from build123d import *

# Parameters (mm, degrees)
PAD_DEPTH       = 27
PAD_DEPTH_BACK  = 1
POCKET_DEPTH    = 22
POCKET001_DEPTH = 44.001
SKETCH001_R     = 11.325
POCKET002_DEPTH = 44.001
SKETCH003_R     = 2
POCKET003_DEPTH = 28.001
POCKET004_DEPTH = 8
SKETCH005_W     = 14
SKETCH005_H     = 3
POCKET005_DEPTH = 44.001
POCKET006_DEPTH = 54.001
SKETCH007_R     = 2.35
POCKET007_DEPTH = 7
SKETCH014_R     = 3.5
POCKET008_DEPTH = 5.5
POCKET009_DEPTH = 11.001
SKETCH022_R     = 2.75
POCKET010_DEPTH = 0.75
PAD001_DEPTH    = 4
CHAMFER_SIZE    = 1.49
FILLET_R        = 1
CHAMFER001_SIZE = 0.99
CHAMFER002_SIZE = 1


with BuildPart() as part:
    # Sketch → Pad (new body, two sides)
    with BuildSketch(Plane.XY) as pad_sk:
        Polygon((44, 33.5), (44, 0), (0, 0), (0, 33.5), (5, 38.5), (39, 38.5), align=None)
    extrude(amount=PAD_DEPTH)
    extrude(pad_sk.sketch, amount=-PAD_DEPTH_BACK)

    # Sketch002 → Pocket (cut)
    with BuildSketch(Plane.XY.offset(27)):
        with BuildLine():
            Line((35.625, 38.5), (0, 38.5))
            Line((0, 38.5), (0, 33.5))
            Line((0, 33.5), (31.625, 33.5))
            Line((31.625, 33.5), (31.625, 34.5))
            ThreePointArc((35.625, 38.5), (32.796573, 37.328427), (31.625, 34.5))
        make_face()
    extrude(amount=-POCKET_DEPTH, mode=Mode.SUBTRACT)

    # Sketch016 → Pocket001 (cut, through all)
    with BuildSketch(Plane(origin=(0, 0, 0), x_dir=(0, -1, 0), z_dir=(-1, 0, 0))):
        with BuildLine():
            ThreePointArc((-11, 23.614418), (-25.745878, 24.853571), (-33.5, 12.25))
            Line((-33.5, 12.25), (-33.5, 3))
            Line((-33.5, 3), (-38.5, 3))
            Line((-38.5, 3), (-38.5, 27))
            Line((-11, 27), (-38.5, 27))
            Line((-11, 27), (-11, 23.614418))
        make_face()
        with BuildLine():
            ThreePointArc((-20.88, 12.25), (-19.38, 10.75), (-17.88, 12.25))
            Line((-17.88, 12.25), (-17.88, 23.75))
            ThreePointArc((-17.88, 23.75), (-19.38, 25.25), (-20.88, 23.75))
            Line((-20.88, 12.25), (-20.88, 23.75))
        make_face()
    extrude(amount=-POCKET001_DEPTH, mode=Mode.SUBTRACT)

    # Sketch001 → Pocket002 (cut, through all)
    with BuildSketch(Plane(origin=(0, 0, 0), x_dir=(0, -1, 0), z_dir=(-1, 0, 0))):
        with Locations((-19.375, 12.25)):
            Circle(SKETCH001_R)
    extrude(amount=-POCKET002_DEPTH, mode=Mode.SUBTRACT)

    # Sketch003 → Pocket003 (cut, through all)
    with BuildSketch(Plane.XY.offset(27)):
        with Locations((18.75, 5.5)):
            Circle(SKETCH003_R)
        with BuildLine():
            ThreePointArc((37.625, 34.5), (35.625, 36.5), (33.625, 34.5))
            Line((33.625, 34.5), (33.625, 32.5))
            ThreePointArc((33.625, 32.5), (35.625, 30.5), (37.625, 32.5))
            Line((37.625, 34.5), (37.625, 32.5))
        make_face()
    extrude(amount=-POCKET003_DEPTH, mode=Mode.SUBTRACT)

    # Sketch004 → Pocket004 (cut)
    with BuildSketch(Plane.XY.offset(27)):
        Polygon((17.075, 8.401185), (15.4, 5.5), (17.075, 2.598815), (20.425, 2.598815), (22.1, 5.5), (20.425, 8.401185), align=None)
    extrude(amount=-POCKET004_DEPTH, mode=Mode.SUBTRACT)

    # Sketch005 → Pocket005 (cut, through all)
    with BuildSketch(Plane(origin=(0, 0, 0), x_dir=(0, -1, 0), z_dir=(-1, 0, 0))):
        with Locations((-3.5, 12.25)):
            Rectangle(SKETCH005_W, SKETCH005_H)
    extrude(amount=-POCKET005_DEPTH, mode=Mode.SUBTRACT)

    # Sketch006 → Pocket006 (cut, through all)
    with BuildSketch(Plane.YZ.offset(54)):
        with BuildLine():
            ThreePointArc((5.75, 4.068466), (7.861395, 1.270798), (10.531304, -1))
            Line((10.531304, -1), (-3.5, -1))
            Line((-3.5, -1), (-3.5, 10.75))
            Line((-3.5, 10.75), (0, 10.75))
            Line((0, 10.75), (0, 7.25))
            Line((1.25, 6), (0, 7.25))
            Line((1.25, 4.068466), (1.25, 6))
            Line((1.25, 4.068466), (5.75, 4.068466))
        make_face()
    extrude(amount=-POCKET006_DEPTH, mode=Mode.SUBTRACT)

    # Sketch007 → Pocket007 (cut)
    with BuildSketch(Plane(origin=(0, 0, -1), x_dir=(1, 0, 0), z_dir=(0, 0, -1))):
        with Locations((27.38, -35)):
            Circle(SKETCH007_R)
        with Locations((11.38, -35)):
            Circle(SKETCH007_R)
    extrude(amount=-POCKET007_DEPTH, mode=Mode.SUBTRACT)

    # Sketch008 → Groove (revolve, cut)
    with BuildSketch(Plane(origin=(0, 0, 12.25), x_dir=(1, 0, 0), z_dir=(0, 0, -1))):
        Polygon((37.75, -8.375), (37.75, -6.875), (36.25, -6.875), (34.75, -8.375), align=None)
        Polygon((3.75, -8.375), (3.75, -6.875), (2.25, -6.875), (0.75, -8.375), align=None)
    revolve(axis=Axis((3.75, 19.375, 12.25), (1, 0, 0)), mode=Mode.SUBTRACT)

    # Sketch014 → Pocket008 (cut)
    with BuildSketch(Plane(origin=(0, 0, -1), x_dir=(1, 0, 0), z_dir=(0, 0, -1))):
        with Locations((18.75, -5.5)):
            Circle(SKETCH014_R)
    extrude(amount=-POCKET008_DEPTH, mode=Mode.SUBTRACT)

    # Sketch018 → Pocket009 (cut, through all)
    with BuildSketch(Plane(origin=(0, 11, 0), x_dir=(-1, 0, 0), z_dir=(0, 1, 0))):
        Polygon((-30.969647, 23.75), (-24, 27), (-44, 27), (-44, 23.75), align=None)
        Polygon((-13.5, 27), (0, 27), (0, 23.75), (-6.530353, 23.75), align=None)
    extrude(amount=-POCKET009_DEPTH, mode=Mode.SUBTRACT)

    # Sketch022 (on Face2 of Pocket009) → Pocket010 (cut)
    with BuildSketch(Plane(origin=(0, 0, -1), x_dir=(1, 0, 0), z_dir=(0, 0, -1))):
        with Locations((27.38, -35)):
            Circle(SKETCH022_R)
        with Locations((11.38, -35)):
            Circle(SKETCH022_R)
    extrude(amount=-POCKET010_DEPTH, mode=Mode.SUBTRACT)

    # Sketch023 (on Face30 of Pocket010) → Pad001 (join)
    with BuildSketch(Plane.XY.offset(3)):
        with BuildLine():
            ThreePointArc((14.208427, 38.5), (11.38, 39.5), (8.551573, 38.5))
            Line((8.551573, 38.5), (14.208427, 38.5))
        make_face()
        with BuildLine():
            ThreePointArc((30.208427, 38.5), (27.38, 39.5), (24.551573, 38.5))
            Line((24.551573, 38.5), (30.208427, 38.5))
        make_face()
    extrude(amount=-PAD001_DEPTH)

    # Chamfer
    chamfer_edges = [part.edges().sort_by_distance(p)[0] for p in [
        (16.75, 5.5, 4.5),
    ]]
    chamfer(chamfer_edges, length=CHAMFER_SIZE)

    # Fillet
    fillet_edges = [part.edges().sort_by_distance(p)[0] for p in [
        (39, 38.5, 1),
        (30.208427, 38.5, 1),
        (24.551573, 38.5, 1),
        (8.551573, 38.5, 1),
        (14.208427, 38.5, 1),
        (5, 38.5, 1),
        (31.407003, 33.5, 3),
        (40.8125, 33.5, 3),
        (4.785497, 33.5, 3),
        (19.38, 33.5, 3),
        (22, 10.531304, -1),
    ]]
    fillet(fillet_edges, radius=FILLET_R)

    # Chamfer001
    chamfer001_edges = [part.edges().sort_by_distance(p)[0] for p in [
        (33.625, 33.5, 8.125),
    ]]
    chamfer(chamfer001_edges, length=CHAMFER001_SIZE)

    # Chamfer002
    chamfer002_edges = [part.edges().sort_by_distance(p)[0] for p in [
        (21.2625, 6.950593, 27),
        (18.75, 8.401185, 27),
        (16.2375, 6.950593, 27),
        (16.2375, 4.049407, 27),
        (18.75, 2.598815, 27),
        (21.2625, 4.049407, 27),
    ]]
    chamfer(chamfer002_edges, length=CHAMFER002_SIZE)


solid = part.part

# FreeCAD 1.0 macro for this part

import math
import FreeCAD as App
import Part
import Sketcher
Q = App.Units.Quantity


def edges_at(feature, points):
    """Names of the edges that pass closest to the given points."""
    edges = feature.Shape.Edges
    near = lambda p: min(range(len(edges)), key=lambda i: edges[i].distToShape(Part.Vertex(*p))[0])
    return sorted({f"Edge{near(p) + 1}" for p in points})

doc = App.newDocument("Part")
body = doc.addObject("PartDesign::Body", "Body")

sketch1 = doc.addObject("Sketcher::SketchObject", "Sketch")
body.addObject(sketch1)
sketch1.AttachmentSupport = (doc.XY_Plane, [""])
sketch1.MapMode = "FlatFace"
sketch1.addGeometry(Part.LineSegment(App.Vector(44, 0, 0), App.Vector(44, 34, 0)), False)
sketch1.addGeometry(Part.LineSegment(App.Vector(44, 34, 0), App.Vector(39, 38, 0)), False)
sketch1.addGeometry(Part.LineSegment(App.Vector(39, 38, 0), App.Vector(5, 38, 0)), False)
sketch1.addGeometry(Part.LineSegment(App.Vector(5, 38, 0), App.Vector(0, 34, 0)), False)
sketch1.addGeometry(Part.LineSegment(App.Vector(0, 34, 0), App.Vector(0, 0, 0)), False)
sketch1.addGeometry(Part.LineSegment(App.Vector(0, 0, 0), App.Vector(44, 0, 0)), False)
sketch1.addConstraint(Sketcher.Constraint("Coincident", 0, 2, 1, 1))
sketch1.addConstraint(Sketcher.Constraint("Coincident", 1, 2, 2, 1))
sketch1.addConstraint(Sketcher.Constraint("Coincident", 2, 2, 3, 1))
sketch1.addConstraint(Sketcher.Constraint("Coincident", 3, 2, 4, 1))
sketch1.addConstraint(Sketcher.Constraint("Coincident", 4, 2, 5, 1))
sketch1.addConstraint(Sketcher.Constraint("Coincident", 5, 2, 0, 1))
sketch1.addConstraint(Sketcher.Constraint("Vertical", 0))
sketch1.addConstraint(Sketcher.Constraint("Horizontal", 2))
sketch1.addConstraint(Sketcher.Constraint("Vertical", 4))
sketch1.addConstraint(Sketcher.Constraint("Horizontal", 5))
sketch1.addConstraint(Sketcher.Constraint("Coincident", 4, 2, -1, 1))
sketch1.addConstraint(Sketcher.Constraint("Perpendicular", 1, 3))
sketch1.addConstraint(Sketcher.Constraint("Horizontal", 0, 2, 3, 2))
sketch1.addConstraint(Sketcher.Constraint("Equal", 1, 3))
sketch1.addConstraint(Sketcher.Constraint("DistanceX", 2, 2, 2, 1, 34.0))
sketch1.addConstraint(Sketcher.Constraint("DistanceX", 5, 1, 5, 2, 44.0))
sketch1.addConstraint(Sketcher.Constraint("DistanceY", 0, 1, 0, 2, 33.5))
pad1 = doc.addObject("PartDesign::Pad", "Pad")
body.addObject(pad1)
pad1.Profile = sketch1
pad1.Type = "TwoLengths"
pad1.Length = 27
pad1.Length2 = 1

sketch2 = doc.addObject("Sketcher::SketchObject", "Sketch001")
body.addObject(sketch2)
sketch2.AttachmentSupport = (doc.XY_Plane, [""])
sketch2.MapMode = "FlatFace"
sketch2.AttachmentOffset = App.Placement(App.Vector(0, 0, 27), App.Rotation())
sketch2.addGeometry(Part.LineSegment(App.Vector(35.6, 38.5, 0), App.Vector(0, 38.5, 0)), False)
sketch2.addGeometry(Part.LineSegment(App.Vector(0, 38.5, 0), App.Vector(0, 33.5, 0)), False)
sketch2.addGeometry(Part.LineSegment(App.Vector(0, 33.5, 0), App.Vector(31.6, 33.5, 0)), False)
sketch2.addGeometry(Part.LineSegment(App.Vector(31.6, 33.5, 0), App.Vector(31.6, 34.5, 0)), False)
sketch2.addGeometry(Part.ArcOfCircle(Part.Circle(App.Vector(35.6, 34.5, 0), App.Vector(0, 0, 1), 4), math.radians(90), math.radians(180)), False)
sketch2.addConstraint(Sketcher.Constraint("Coincident", 0, 2, 1, 1))
sketch2.addConstraint(Sketcher.Constraint("Coincident", 1, 2, 2, 1))
sketch2.addConstraint(Sketcher.Constraint("Coincident", 2, 2, 3, 1))
sketch2.addConstraint(Sketcher.Constraint("Tangent", 3, 2, 4, 2))
sketch2.addConstraint(Sketcher.Constraint("Tangent", 4, 1, 0, 1))
sketch2.addConstraint(Sketcher.Constraint("Horizontal", 0))
sketch2.addConstraint(Sketcher.Constraint("Vertical", 1))
sketch2.addConstraint(Sketcher.Constraint("Horizontal", 2))
sketch2.addConstraint(Sketcher.Constraint("Vertical", 3))
sketch2.addConstraint(Sketcher.Constraint("PointOnObject", 0, 2, -2))
sketch2.addConstraint(Sketcher.Constraint("Radius", 4, 4.0))
sketch2.addConstraint(Sketcher.Constraint("DistanceY", 1, 2, 1, 1, 5.0))
sketch2.addConstraint(Sketcher.Constraint("DistanceY", -1, 1, 4, 3, 34.5))
sketch2.addConstraint(Sketcher.Constraint("DistanceX", 0, 2, 0, 1, 35.625))
pocket1 = doc.addObject("PartDesign::Pocket", "Pocket")
body.addObject(pocket1)
pocket1.Profile = sketch2
pocket1.Length = 22

sketch3 = doc.addObject("Sketcher::SketchObject", "Sketch002")
body.addObject(sketch3)
sketch3.AttachmentSupport = (doc.YZ_Plane, [""])
sketch3.MapMode = "FlatFace"
sketch3.addGeometry(Part.ArcOfCircle(Part.Circle(App.Vector(19.4, 12.3, 0), App.Vector(0, 0, 1), 14.1), math.radians(0), math.radians(126)), False)
sketch3.addGeometry(Part.LineSegment(App.Vector(11, 23.6, 0), App.Vector(11, 27, 0)), False)
sketch3.addGeometry(Part.LineSegment(App.Vector(11, 27, 0), App.Vector(38.5, 27, 0)), False)
sketch3.addGeometry(Part.LineSegment(App.Vector(38.5, 27, 0), App.Vector(38.5, 3, 0)), False)
sketch3.addGeometry(Part.LineSegment(App.Vector(38.5, 3, 0), App.Vector(33.5, 3, 0)), False)
sketch3.addGeometry(Part.LineSegment(App.Vector(33.5, 3, 0), App.Vector(33.5, 12.2, 0)), False)
sketch3.addGeometry(Part.ArcOfCircle(Part.Circle(App.Vector(19.4, 12.2, 0), App.Vector(0, 0, 1), 1.5), math.radians(180), math.radians(360)), False)
sketch3.addGeometry(Part.LineSegment(App.Vector(17.9, 12.2, 0), App.Vector(17.9, 23.8, 0)), False)
sketch3.addGeometry(Part.ArcOfCircle(Part.Circle(App.Vector(19.4, 23.8, 0), App.Vector(0, 0, 1), 1.5), math.radians(0), math.radians(180)), False)
sketch3.addGeometry(Part.LineSegment(App.Vector(20.9, 23.8, 0), App.Vector(20.9, 12.2, 0)), False)
sketch3.addConstraint(Sketcher.Constraint("Coincident", 0, 2, 1, 1))
sketch3.addConstraint(Sketcher.Constraint("Coincident", 1, 2, 2, 1))
sketch3.addConstraint(Sketcher.Constraint("Coincident", 2, 2, 3, 1))
sketch3.addConstraint(Sketcher.Constraint("Coincident", 3, 2, 4, 1))
sketch3.addConstraint(Sketcher.Constraint("Coincident", 4, 2, 5, 1))
sketch3.addConstraint(Sketcher.Constraint("Tangent", 5, 2, 0, 1))
sketch3.addConstraint(Sketcher.Constraint("Tangent", 6, 1, 7, 1))
sketch3.addConstraint(Sketcher.Constraint("Tangent", 7, 2, 8, 2))
sketch3.addConstraint(Sketcher.Constraint("Tangent", 8, 1, 9, 1))
sketch3.addConstraint(Sketcher.Constraint("Tangent", 9, 2, 6, 2))
sketch3.addConstraint(Sketcher.Constraint("Vertical", 1))
sketch3.addConstraint(Sketcher.Constraint("Horizontal", 2))
sketch3.addConstraint(Sketcher.Constraint("Vertical", 3))
sketch3.addConstraint(Sketcher.Constraint("Horizontal", 4))
sketch3.addConstraint(Sketcher.Constraint("Vertical", 5))
sketch3.addConstraint(Sketcher.Constraint("Vertical", 7))
sketch3.addConstraint(Sketcher.Constraint("Vertical", 9))
sketch3.addConstraint(Sketcher.Constraint("Coincident", 6, 3, 0, 3))
sketch3.addConstraint(Sketcher.Constraint("Radius", 6, 1.5))
sketch3.addConstraint(Sketcher.Constraint("DistanceX", 4, 2, 4, 1, 5.0))
sketch3.addConstraint(Sketcher.Constraint("DistanceY", 3, 2, 3, 1, 24.0))
sketch3.addConstraint(Sketcher.Constraint("Radius", 0, 14.12))
sketch3.addConstraint(Sketcher.Constraint("DistanceX", 2, 1, 2, 2, 27.5))
sketch3.addConstraint(Sketcher.Constraint("DistanceY", 7, 1, 7, 2, 11.5))
sketch3.addConstraint(Sketcher.Constraint("DistanceX", -1, 1, 0, 2, 11.0))
sketch3.addConstraint(Sketcher.Constraint("DistanceY", -1, 1, 1, 2, 27.0))
sketch3.addConstraint(Sketcher.Constraint("DistanceY", 5, 1, 5, 2, 9.25))
pocket2 = doc.addObject("PartDesign::Pocket", "Pocket001")
body.addObject(pocket2)
pocket2.Profile = sketch3
pocket2.Type = "ThroughAll"
pocket2.Reversed = True

sketch4 = doc.addObject("Sketcher::SketchObject", "Sketch003")
body.addObject(sketch4)
sketch4.AttachmentSupport = (doc.YZ_Plane, [""])
sketch4.MapMode = "FlatFace"
sketch4.addGeometry(Part.Circle(App.Vector(19, 12, 0), App.Vector(0, 0, 1), 11), False)
sketch4.addConstraint(Sketcher.Constraint("Diameter", 0, 22.65))
sketch4.addConstraint(Sketcher.Constraint("DistanceY", -1, 1, 0, 3, 12.25))
sketch4.addConstraint(Sketcher.Constraint("DistanceX", -1, 1, 0, 3, 19.375))
pocket3 = doc.addObject("PartDesign::Pocket", "Pocket002")
body.addObject(pocket3)
pocket3.Profile = sketch4
pocket3.Type = "ThroughAll"
pocket3.Reversed = True

sketch5 = doc.addObject("Sketcher::SketchObject", "Sketch004")
body.addObject(sketch5)
sketch5.AttachmentSupport = (doc.XY_Plane, [""])
sketch5.MapMode = "FlatFace"
sketch5.AttachmentOffset = App.Placement(App.Vector(0, 0, 27), App.Rotation())
sketch5.addGeometry(Part.Circle(App.Vector(18.8, 5.5, 0), App.Vector(0, 0, 1), 2), False)
sketch5.addGeometry(Part.ArcOfCircle(Part.Circle(App.Vector(35.6, 34.5, 0), App.Vector(0, 0, 1), 2), math.radians(0), math.radians(180)), False)
sketch5.addGeometry(Part.LineSegment(App.Vector(33.6, 34.5, 0), App.Vector(33.6, 32.5, 0)), False)
sketch5.addGeometry(Part.ArcOfCircle(Part.Circle(App.Vector(35.6, 32.5, 0), App.Vector(0, 0, 1), 2), math.radians(180), math.radians(360)), False)
sketch5.addGeometry(Part.LineSegment(App.Vector(37.6, 32.5, 0), App.Vector(37.6, 34.5, 0)), False)
sketch5.addConstraint(Sketcher.Constraint("Tangent", 1, 2, 2, 1))
sketch5.addConstraint(Sketcher.Constraint("Tangent", 2, 2, 3, 1))
sketch5.addConstraint(Sketcher.Constraint("Tangent", 3, 2, 4, 1))
sketch5.addConstraint(Sketcher.Constraint("Tangent", 4, 2, 1, 1))
sketch5.addConstraint(Sketcher.Constraint("Vertical", 2))
sketch5.addConstraint(Sketcher.Constraint("Vertical", 4))
sketch5.addConstraint(Sketcher.Constraint("Equal", 0, 1))
sketch5.addConstraint(Sketcher.Constraint("Diameter", 0, 4.0))
sketch5.addConstraint(Sketcher.Constraint("DistanceY", 2, 2, 2, 1, 2.0))
sketch5.addConstraint(Sketcher.Constraint("DistanceY", 0, 3, 1, 3, 29.0))
sketch5.addConstraint(Sketcher.Constraint("DistanceY", -1, 1, 0, 3, 5.5))
sketch5.addConstraint(Sketcher.Constraint("DistanceX", -1, 1, 0, 3, 18.75))
sketch5.addConstraint(Sketcher.Constraint("DistanceX", -1, 1, 1, 3, 35.625))
pocket4 = doc.addObject("PartDesign::Pocket", "Pocket003")
body.addObject(pocket4)
pocket4.Profile = sketch5
pocket4.Type = "ThroughAll"

sketch6 = doc.addObject("Sketcher::SketchObject", "Sketch005")
body.addObject(sketch6)
sketch6.AttachmentSupport = (doc.XY_Plane, [""])
sketch6.MapMode = "FlatFace"
sketch6.AttachmentOffset = App.Placement(App.Vector(0, 0, 27), App.Rotation())
sketch6.addGeometry(Part.LineSegment(App.Vector(17.1, 8.4, 0), App.Vector(15.4, 5.5, 0)), False)
sketch6.addGeometry(Part.LineSegment(App.Vector(15.4, 5.5, 0), App.Vector(17.1, 2.6, 0)), False)
sketch6.addGeometry(Part.LineSegment(App.Vector(17.1, 2.6, 0), App.Vector(20.4, 2.6, 0)), False)
sketch6.addGeometry(Part.LineSegment(App.Vector(20.4, 2.6, 0), App.Vector(22.1, 5.5, 0)), False)
sketch6.addGeometry(Part.LineSegment(App.Vector(22.1, 5.5, 0), App.Vector(20.4, 8.4, 0)), False)
sketch6.addGeometry(Part.LineSegment(App.Vector(20.4, 8.4, 0), App.Vector(17.1, 8.4, 0)), False)
sketch6.addConstraint(Sketcher.Constraint("Coincident", 0, 2, 1, 1))
sketch6.addConstraint(Sketcher.Constraint("Coincident", 1, 2, 2, 1))
sketch6.addConstraint(Sketcher.Constraint("Coincident", 2, 2, 3, 1))
sketch6.addConstraint(Sketcher.Constraint("Coincident", 3, 2, 4, 1))
sketch6.addConstraint(Sketcher.Constraint("Coincident", 4, 2, 5, 1))
sketch6.addConstraint(Sketcher.Constraint("Coincident", 5, 2, 0, 1))
sketch6.addConstraint(Sketcher.Constraint("Horizontal", 2))
sketch6.addConstraint(Sketcher.Constraint("Horizontal", 5))
sketch6.addConstraint(Sketcher.Constraint("Parallel", 0, 3))
sketch6.addConstraint(Sketcher.Constraint("Parallel", 1, 4))
sketch6.addConstraint(Sketcher.Constraint("Horizontal", 0, 2, 3, 2))
sketch6.addConstraint(Sketcher.Constraint("Vertical", 2, 2, 4, 2))
sketch6.addConstraint(Sketcher.Constraint("Vertical", 1, 2, 5, 2))
sketch6.addConstraint(Sketcher.Constraint("Angle", 0, Q("-120.000001 deg")))
sketch6.addConstraint(Sketcher.Constraint("DistanceX", 2, 1, 2, 2, 3.35))
sketch6.addConstraint(Sketcher.Constraint("DistanceX", -1, 1, 0, 2, 15.4))
sketch6.addConstraint(Sketcher.Constraint("DistanceY", -1, 1, 0, 2, 5.5))
sketch6.addConstraint(Sketcher.Constraint("DistanceX", -1, 1, 3, 2, 22.1))
pocket5 = doc.addObject("PartDesign::Pocket", "Pocket004")
body.addObject(pocket5)
pocket5.Profile = sketch6
pocket5.Length = 8

sketch7 = doc.addObject("Sketcher::SketchObject", "Sketch006")
body.addObject(sketch7)
sketch7.AttachmentSupport = (doc.YZ_Plane, [""])
sketch7.MapMode = "FlatFace"
sketch7.addGeometry(Part.LineSegment(App.Vector(10.5, 13.8, 0), App.Vector(10.5, 10.8, 0)), False)
sketch7.addGeometry(Part.LineSegment(App.Vector(10.5, 10.8, 0), App.Vector(-3.5, 10.8, 0)), False)
sketch7.addGeometry(Part.LineSegment(App.Vector(-3.5, 10.8, 0), App.Vector(-3.5, 13.8, 0)), False)
sketch7.addGeometry(Part.LineSegment(App.Vector(-3.5, 13.8, 0), App.Vector(10.5, 13.8, 0)), False)
sketch7.addConstraint(Sketcher.Constraint("Coincident", 0, 2, 1, 1))
sketch7.addConstraint(Sketcher.Constraint("Coincident", 1, 2, 2, 1))
sketch7.addConstraint(Sketcher.Constraint("Coincident", 2, 2, 3, 1))
sketch7.addConstraint(Sketcher.Constraint("Coincident", 3, 2, 0, 1))
sketch7.addConstraint(Sketcher.Constraint("Vertical", 0))
sketch7.addConstraint(Sketcher.Constraint("Horizontal", 1))
sketch7.addConstraint(Sketcher.Constraint("Vertical", 2))
sketch7.addConstraint(Sketcher.Constraint("Horizontal", 3))
sketch7.addConstraint(Sketcher.Constraint("DistanceX", 1, 2, 1, 1, 14.0))
sketch7.addConstraint(Sketcher.Constraint("DistanceY", 0, 2, 0, 1, 3.0))
sketch7.addConstraint(Sketcher.Constraint("DistanceX", -1, 1, 0, 2, 10.5))
sketch7.addConstraint(Sketcher.Constraint("DistanceY", -1, 1, 0, 2, 10.75))
pocket6 = doc.addObject("PartDesign::Pocket", "Pocket005")
body.addObject(pocket6)
pocket6.Profile = sketch7
pocket6.Type = "ThroughAll"
pocket6.Reversed = True

sketch8 = doc.addObject("Sketcher::SketchObject", "Sketch007")
body.addObject(sketch8)
sketch8.AttachmentSupport = (doc.YZ_Plane, [""])
sketch8.MapMode = "FlatFace"
sketch8.AttachmentOffset = App.Placement(App.Vector(0, 0, 54), App.Rotation())
sketch8.addGeometry(Part.ArcOfCircle(Part.Circle(App.Vector(19.5, 12.2, 0), App.Vector(0, 0, 1), 16), math.radians(-149), math.radians(-124)), False)
sketch8.addGeometry(Part.LineSegment(App.Vector(5.8, 4.1, 0), App.Vector(1.2, 4.1, 0)), False)
sketch8.addGeometry(Part.LineSegment(App.Vector(1.2, 4.1, 0), App.Vector(1.2, 6, 0)), False)
sketch8.addGeometry(Part.LineSegment(App.Vector(1.2, 6, 0), App.Vector(0, 7.2, 0)), False)
sketch8.addGeometry(Part.LineSegment(App.Vector(0, 7.2, 0), App.Vector(0, 10.8, 0)), False)
sketch8.addGeometry(Part.LineSegment(App.Vector(0, 10.8, 0), App.Vector(-3.5, 10.8, 0)), False)
sketch8.addGeometry(Part.LineSegment(App.Vector(-3.5, 10.8, 0), App.Vector(-3.5, -1, 0)), False)
sketch8.addGeometry(Part.LineSegment(App.Vector(-3.5, -1, 0), App.Vector(10.5, -1, 0)), False)
sketch8.addConstraint(Sketcher.Constraint("Coincident", 0, 1, 1, 1))
sketch8.addConstraint(Sketcher.Constraint("Coincident", 1, 2, 2, 1))
sketch8.addConstraint(Sketcher.Constraint("Coincident", 2, 2, 3, 1))
sketch8.addConstraint(Sketcher.Constraint("Coincident", 3, 2, 4, 1))
sketch8.addConstraint(Sketcher.Constraint("Coincident", 4, 2, 5, 1))
sketch8.addConstraint(Sketcher.Constraint("Coincident", 5, 2, 6, 1))
sketch8.addConstraint(Sketcher.Constraint("Coincident", 6, 2, 7, 1))
sketch8.addConstraint(Sketcher.Constraint("Coincident", 7, 2, 0, 2))
sketch8.addConstraint(Sketcher.Constraint("Horizontal", 1))
sketch8.addConstraint(Sketcher.Constraint("Vertical", 2))
sketch8.addConstraint(Sketcher.Constraint("Vertical", 4))
sketch8.addConstraint(Sketcher.Constraint("Horizontal", 5))
sketch8.addConstraint(Sketcher.Constraint("Vertical", 6))
sketch8.addConstraint(Sketcher.Constraint("Horizontal", 7))
sketch8.addConstraint(Sketcher.Constraint("PointOnObject", 3, 2, -2))
sketch8.addConstraint(Sketcher.Constraint("Equal", 5, 4))
sketch8.addConstraint(Sketcher.Constraint("Radius", 0, 16.000001))
sketch8.addConstraint(Sketcher.Constraint("Angle", 3, Q("135 deg")))
sketch8.addConstraint(Sketcher.Constraint("DistanceX", 1, 2, 1, 1, 4.5))
sketch8.addConstraint(Sketcher.Constraint("DistanceX", 5, 2, 5, 1, 3.5))
sketch8.addConstraint(Sketcher.Constraint("DistanceY", -1, 1, 2, 2, 6.0))
sketch8.addConstraint(Sketcher.Constraint("DistanceY", 6, 2, -1, 1, 1.0))
sketch8.addConstraint(Sketcher.Constraint("DistanceY", 3, 2, 0, 3, 5.0))
sketch8.addConstraint(Sketcher.Constraint("DistanceY", 6, 2, 6, 1, 11.75))
sketch8.addConstraint(Sketcher.Constraint("DistanceX", -1, 1, 0, 3, 19.500001))
pocket7 = doc.addObject("PartDesign::Pocket", "Pocket006")
body.addObject(pocket7)
pocket7.Profile = sketch8
pocket7.Type = "ThroughAll"

sketch9 = doc.addObject("Sketcher::SketchObject", "Sketch008")
body.addObject(sketch9)
sketch9.AttachmentSupport = (doc.XY_Plane, [""])
sketch9.MapMode = "FlatFace"
sketch9.AttachmentOffset = App.Placement(App.Vector(0, 0, -1), App.Rotation())
sketch9.addGeometry(Part.Circle(App.Vector(27.4, 35, 0), App.Vector(0, 0, 1), 2.4), False)
sketch9.addGeometry(Part.Circle(App.Vector(11.4, 35, 0), App.Vector(0, 0, 1), 2.4), False)
sketch9.addConstraint(Sketcher.Constraint("Equal", 0, 1))
sketch9.addConstraint(Sketcher.Constraint("Horizontal", 0, 3, 1, 3))
sketch9.addConstraint(Sketcher.Constraint("Diameter", 0, 4.7))
sketch9.addConstraint(Sketcher.Constraint("DistanceY", -1, 1, 0, 3, 35.0))
sketch9.addConstraint(Sketcher.Constraint("DistanceX", 1, 3, 0, 3, 16.0))
sketch9.addConstraint(Sketcher.Constraint("DistanceX", -1, 1, 0, 3, 27.38))
pocket8 = doc.addObject("PartDesign::Pocket", "Pocket007")
body.addObject(pocket8)
pocket8.Profile = sketch9
pocket8.Length = 7
pocket8.Reversed = True

sketch10 = doc.addObject("Sketcher::SketchObject", "Sketch009")
body.addObject(sketch10)
sketch10.AttachmentSupport = (doc.XY_Plane, [""])
sketch10.MapMode = "FlatFace"
sketch10.AttachmentOffset = App.Placement(App.Vector(0, 0, 12.25), App.Rotation())
sketch10.addGeometry(Part.LineSegment(App.Vector(37.8, 8.4, 0), App.Vector(37.8, 6.9, 0)), False)
sketch10.addGeometry(Part.LineSegment(App.Vector(37.8, 6.9, 0), App.Vector(36.2, 6.9, 0)), False)
sketch10.addGeometry(Part.LineSegment(App.Vector(36.2, 6.9, 0), App.Vector(34.8, 8.4, 0)), False)
sketch10.addGeometry(Part.LineSegment(App.Vector(34.8, 8.4, 0), App.Vector(37.8, 8.4, 0)), False)
sketch10.addGeometry(Part.LineSegment(App.Vector(3.8, 8.4, 0), App.Vector(3.8, 6.9, 0)), False)
sketch10.addGeometry(Part.LineSegment(App.Vector(3.8, 6.9, 0), App.Vector(2.2, 6.9, 0)), False)
sketch10.addGeometry(Part.LineSegment(App.Vector(2.2, 6.9, 0), App.Vector(0.8, 8.4, 0)), False)
sketch10.addGeometry(Part.LineSegment(App.Vector(0.8, 8.4, 0), App.Vector(3.8, 8.4, 0)), False)
sketch10.addGeometry(Part.LineSegment(App.Vector(0.8, 19.4, 0), App.Vector(37.8, 19.4, 0)), True)
sketch10.addConstraint(Sketcher.Constraint("Coincident", 0, 2, 1, 1))
sketch10.addConstraint(Sketcher.Constraint("Coincident", 1, 2, 2, 1))
sketch10.addConstraint(Sketcher.Constraint("Coincident", 2, 2, 3, 1))
sketch10.addConstraint(Sketcher.Constraint("Coincident", 3, 2, 0, 1))
sketch10.addConstraint(Sketcher.Constraint("Coincident", 4, 2, 5, 1))
sketch10.addConstraint(Sketcher.Constraint("Coincident", 5, 2, 6, 1))
sketch10.addConstraint(Sketcher.Constraint("Coincident", 6, 2, 7, 1))
sketch10.addConstraint(Sketcher.Constraint("Coincident", 7, 2, 4, 1))
sketch10.addConstraint(Sketcher.Constraint("Vertical", 0))
sketch10.addConstraint(Sketcher.Constraint("Horizontal", 1))
sketch10.addConstraint(Sketcher.Constraint("Horizontal", 3))
sketch10.addConstraint(Sketcher.Constraint("Vertical", 4))
sketch10.addConstraint(Sketcher.Constraint("Horizontal", 5))
sketch10.addConstraint(Sketcher.Constraint("Horizontal", 7))
sketch10.addConstraint(Sketcher.Constraint("Horizontal", 8))
sketch10.addConstraint(Sketcher.Constraint("Parallel", 2, 6))
sketch10.addConstraint(Sketcher.Constraint("Horizontal", 1, 2, 4, 2))
sketch10.addConstraint(Sketcher.Constraint("Horizontal", 3, 2, 6, 2))
sketch10.addConstraint(Sketcher.Constraint("Vertical", 6, 2, 8, 1))
sketch10.addConstraint(Sketcher.Constraint("Vertical", 3, 2, 8, 2))
sketch10.addConstraint(Sketcher.Constraint("Equal", 1, 5))
sketch10.addConstraint(Sketcher.Constraint("Equal", 5, 0))
sketch10.addConstraint(Sketcher.Constraint("DistanceX", 3, 1, 3, 2, 3.0))
sketch10.addConstraint(Sketcher.Constraint("DistanceX", 8, 1, 8, 2, 37.0))
sketch10.addConstraint(Sketcher.Constraint("Angle", 2, Q("135 deg")))
sketch10.addConstraint(Sketcher.Constraint("DistanceY", 6, 2, 8, 1, 11.0))
sketch10.addConstraint(Sketcher.Constraint("DistanceX", -1, 1, 0, 2, 37.75))
sketch10.addConstraint(Sketcher.Constraint("DistanceY", -1, 1, 0, 2, 6.875))
groove = doc.addObject("PartDesign::Groove", "Groove")
body.addObject(groove)
groove.Profile = sketch10
groove.ReferenceAxis = (sketch10, ["Axis0"])
groove.Angle = 360

sketch11 = doc.addObject("Sketcher::SketchObject", "Sketch010")
body.addObject(sketch11)
sketch11.AttachmentSupport = (doc.XY_Plane, [""])
sketch11.MapMode = "FlatFace"
sketch11.AttachmentOffset = App.Placement(App.Vector(0, 0, -1), App.Rotation())
sketch11.addGeometry(Part.Circle(App.Vector(18.8, 5.5, 0), App.Vector(0, 0, 1), 3.5), False)
sketch11.addConstraint(Sketcher.Constraint("Diameter", 0, 7.0))
sketch11.addConstraint(Sketcher.Constraint("DistanceY", -1, 1, 0, 3, 5.5))
sketch11.addConstraint(Sketcher.Constraint("DistanceX", -1, 1, 0, 3, 18.75))
pocket9 = doc.addObject("PartDesign::Pocket", "Pocket008")
body.addObject(pocket9)
pocket9.Profile = sketch11
pocket9.Length = 5.5
pocket9.Reversed = True

sketch12 = doc.addObject("Sketcher::SketchObject", "Sketch011")
body.addObject(sketch12)
sketch12.AttachmentSupport = (doc.XZ_Plane, [""])
sketch12.MapMode = "FlatFace"
sketch12.AttachmentOffset = App.Placement(App.Vector(0, 0, -11), App.Rotation())
sketch12.addGeometry(Part.LineSegment(App.Vector(31, 23.8, 0), App.Vector(24, 27, 0)), False)
sketch12.addGeometry(Part.LineSegment(App.Vector(24, 27, 0), App.Vector(44, 27, 0)), False)
sketch12.addGeometry(Part.LineSegment(App.Vector(44, 27, 0), App.Vector(44, 23.8, 0)), False)
sketch12.addGeometry(Part.LineSegment(App.Vector(44, 23.8, 0), App.Vector(31, 23.8, 0)), False)
sketch12.addGeometry(Part.LineSegment(App.Vector(0, 27, 0), App.Vector(13.5, 27, 0)), False)
sketch12.addGeometry(Part.LineSegment(App.Vector(13.5, 27, 0), App.Vector(6.5, 23.8, 0)), False)
sketch12.addGeometry(Part.LineSegment(App.Vector(6.5, 23.8, 0), App.Vector(0, 23.8, 0)), False)
sketch12.addGeometry(Part.LineSegment(App.Vector(0, 23.8, 0), App.Vector(0, 27, 0)), False)
sketch12.addConstraint(Sketcher.Constraint("Coincident", 0, 2, 1, 1))
sketch12.addConstraint(Sketcher.Constraint("Coincident", 1, 2, 2, 1))
sketch12.addConstraint(Sketcher.Constraint("Coincident", 2, 2, 3, 1))
sketch12.addConstraint(Sketcher.Constraint("Coincident", 3, 2, 0, 1))
sketch12.addConstraint(Sketcher.Constraint("Coincident", 4, 2, 5, 1))
sketch12.addConstraint(Sketcher.Constraint("Coincident", 5, 2, 6, 1))
sketch12.addConstraint(Sketcher.Constraint("Coincident", 6, 2, 7, 1))
sketch12.addConstraint(Sketcher.Constraint("Coincident", 7, 2, 4, 1))
sketch12.addConstraint(Sketcher.Constraint("Horizontal", 1))
sketch12.addConstraint(Sketcher.Constraint("Vertical", 2))
sketch12.addConstraint(Sketcher.Constraint("Horizontal", 3))
sketch12.addConstraint(Sketcher.Constraint("Horizontal", 4))
sketch12.addConstraint(Sketcher.Constraint("Horizontal", 6))
sketch12.addConstraint(Sketcher.Constraint("Vertical", 7))
sketch12.addConstraint(Sketcher.Constraint("PointOnObject", 6, 2, -2))
sketch12.addConstraint(Sketcher.Constraint("Horizontal", 1, 2, 4, 2))
sketch12.addConstraint(Sketcher.Constraint("Horizontal", 3, 2, 5, 2))
sketch12.addConstraint(Sketcher.Constraint("Equal", 0, 5))
sketch12.addConstraint(Sketcher.Constraint("DistanceX", 1, 1, 1, 2, 20.0))
sketch12.addConstraint(Sketcher.Constraint("Angle", 0, Q("154.999998 deg")))
sketch12.addConstraint(Sketcher.Constraint("DistanceX", 4, 1, 4, 2, 13.5))
sketch12.addConstraint(Sketcher.Constraint("DistanceX", -1, 1, 0, 2, 24.0))
sketch12.addConstraint(Sketcher.Constraint("DistanceY", -1, 1, 0, 2, 27.0))
sketch12.addConstraint(Sketcher.Constraint("DistanceY", 2, 2, 2, 1, 3.25))
pocket10 = doc.addObject("PartDesign::Pocket", "Pocket009")
body.addObject(pocket10)
pocket10.Profile = sketch12
pocket10.Type = "ThroughAll"
pocket10.Reversed = True

sketch13 = doc.addObject("Sketcher::SketchObject", "Sketch012")
body.addObject(sketch13)
sketch13.AttachmentSupport = (doc.XY_Plane, [""])
sketch13.MapMode = "FlatFace"
sketch13.AttachmentOffset = App.Placement(App.Vector(0, 0, -1), App.Rotation())
sketch13.addGeometry(Part.Circle(App.Vector(27.4, 35, 0), App.Vector(0, 0, 1), 2.8), False)
sketch13.addGeometry(Part.Circle(App.Vector(11.4, 35, 0), App.Vector(0, 0, 1), 2.8), False)
sketch13.addConstraint(Sketcher.Constraint("Equal", 0, 1))
sketch13.addConstraint(Sketcher.Constraint("Horizontal", 0, 3, 1, 3))
sketch13.addConstraint(Sketcher.Constraint("Diameter", 0, 5.5))
sketch13.addConstraint(Sketcher.Constraint("DistanceY", -1, 1, 0, 3, 35.0))
sketch13.addConstraint(Sketcher.Constraint("DistanceX", 1, 3, 0, 3, 16.0))
sketch13.addConstraint(Sketcher.Constraint("DistanceX", -1, 1, 0, 3, 27.38))
pocket11 = doc.addObject("PartDesign::Pocket", "Pocket010")
body.addObject(pocket11)
pocket11.Profile = sketch13
pocket11.Length = 0.75
pocket11.Reversed = True

sketch14 = doc.addObject("Sketcher::SketchObject", "Sketch013")
body.addObject(sketch14)
sketch14.AttachmentSupport = (doc.XY_Plane, [""])
sketch14.MapMode = "FlatFace"
sketch14.AttachmentOffset = App.Placement(App.Vector(0, 0, 3), App.Rotation())
sketch14.addGeometry(Part.ArcOfCircle(Part.Circle(App.Vector(11.4, 35, 0), App.Vector(0, 0, 1), 4.5), math.radians(51), math.radians(129)), False)
sketch14.addGeometry(Part.LineSegment(App.Vector(8.6, 38.5, 0), App.Vector(14.2, 38.5, 0)), False)
sketch14.addGeometry(Part.ArcOfCircle(Part.Circle(App.Vector(27.4, 35, 0), App.Vector(0, 0, 1), 4.5), math.radians(51), math.radians(129)), False)
sketch14.addGeometry(Part.LineSegment(App.Vector(24.6, 38.5, 0), App.Vector(30.2, 38.5, 0)), False)
sketch14.addConstraint(Sketcher.Constraint("Coincident", 0, 1, 1, 2))
sketch14.addConstraint(Sketcher.Constraint("Coincident", 1, 1, 0, 2))
sketch14.addConstraint(Sketcher.Constraint("Coincident", 2, 1, 3, 2))
sketch14.addConstraint(Sketcher.Constraint("Coincident", 3, 1, 2, 2))
sketch14.addConstraint(Sketcher.Constraint("Horizontal", 1))
sketch14.addConstraint(Sketcher.Constraint("Horizontal", 3))
sketch14.addConstraint(Sketcher.Constraint("Equal", 0, 2))
sketch14.addConstraint(Sketcher.Constraint("Horizontal", 0, 3, 2, 3))
sketch14.addConstraint(Sketcher.Constraint("Horizontal", 1, 1, 2, 1))
sketch14.addConstraint(Sketcher.Constraint("Radius", 0, 4.5))
sketch14.addConstraint(Sketcher.Constraint("DistanceY", -1, 1, 0, 3, 35.0))
sketch14.addConstraint(Sketcher.Constraint("DistanceX", 0, 3, 2, 3, 16.0))
sketch14.addConstraint(Sketcher.Constraint("DistanceY", -1, 1, 0, 1, 38.5))
sketch14.addConstraint(Sketcher.Constraint("DistanceX", -1, 1, 0, 3, 11.38))
pad2 = doc.addObject("PartDesign::Pad", "Pad001")
body.addObject(pad2)
pad2.Profile = sketch14
pad2.Length = 4
pad2.Reversed = True
doc.recompute()

chamfer = doc.addObject("PartDesign::Chamfer", "Chamfer")
body.addObject(chamfer)
chamfer.Base = (pad2, edges_at(pad2, [(16.75, 5.5, 4.5)]))
chamfer.Size = 1.49
doc.recompute()

fillet = doc.addObject("PartDesign::Fillet", "Fillet")
body.addObject(fillet)
fillet.Base = (chamfer, edges_at(chamfer, [
    (39, 38.5, 1),
    (30.208, 38.5, 1),
    (24.552, 38.5, 1),
    (8.552, 38.5, 1),
    (14.208, 38.5, 1),
    (5, 38.5, 1),
    (31.407, 33.5, 3),
    (40.812, 33.5, 3),
    (4.785, 33.5, 3),
    (19.38, 33.5, 3),
    (22, 10.531, -1),
]))
fillet.Radius = 1
doc.recompute()

chamfer2 = doc.addObject("PartDesign::Chamfer", "Chamfer001")
body.addObject(chamfer2)
chamfer2.Base = (fillet, edges_at(fillet, [(33.625, 33.5, 8.125)]))
chamfer2.Size = 0.99
doc.recompute()

chamfer3 = doc.addObject("PartDesign::Chamfer", "Chamfer002")
body.addObject(chamfer3)
chamfer3.Base = (chamfer2, edges_at(chamfer2, [
    (21.262, 6.951, 27),
    (18.75, 8.401, 27),
    (16.238, 6.951, 27),
    (16.238, 4.049, 27),
    (18.75, 2.599, 27),
    (21.262, 4.049, 27),
]))
chamfer3.Size = 1

doc.recompute()
